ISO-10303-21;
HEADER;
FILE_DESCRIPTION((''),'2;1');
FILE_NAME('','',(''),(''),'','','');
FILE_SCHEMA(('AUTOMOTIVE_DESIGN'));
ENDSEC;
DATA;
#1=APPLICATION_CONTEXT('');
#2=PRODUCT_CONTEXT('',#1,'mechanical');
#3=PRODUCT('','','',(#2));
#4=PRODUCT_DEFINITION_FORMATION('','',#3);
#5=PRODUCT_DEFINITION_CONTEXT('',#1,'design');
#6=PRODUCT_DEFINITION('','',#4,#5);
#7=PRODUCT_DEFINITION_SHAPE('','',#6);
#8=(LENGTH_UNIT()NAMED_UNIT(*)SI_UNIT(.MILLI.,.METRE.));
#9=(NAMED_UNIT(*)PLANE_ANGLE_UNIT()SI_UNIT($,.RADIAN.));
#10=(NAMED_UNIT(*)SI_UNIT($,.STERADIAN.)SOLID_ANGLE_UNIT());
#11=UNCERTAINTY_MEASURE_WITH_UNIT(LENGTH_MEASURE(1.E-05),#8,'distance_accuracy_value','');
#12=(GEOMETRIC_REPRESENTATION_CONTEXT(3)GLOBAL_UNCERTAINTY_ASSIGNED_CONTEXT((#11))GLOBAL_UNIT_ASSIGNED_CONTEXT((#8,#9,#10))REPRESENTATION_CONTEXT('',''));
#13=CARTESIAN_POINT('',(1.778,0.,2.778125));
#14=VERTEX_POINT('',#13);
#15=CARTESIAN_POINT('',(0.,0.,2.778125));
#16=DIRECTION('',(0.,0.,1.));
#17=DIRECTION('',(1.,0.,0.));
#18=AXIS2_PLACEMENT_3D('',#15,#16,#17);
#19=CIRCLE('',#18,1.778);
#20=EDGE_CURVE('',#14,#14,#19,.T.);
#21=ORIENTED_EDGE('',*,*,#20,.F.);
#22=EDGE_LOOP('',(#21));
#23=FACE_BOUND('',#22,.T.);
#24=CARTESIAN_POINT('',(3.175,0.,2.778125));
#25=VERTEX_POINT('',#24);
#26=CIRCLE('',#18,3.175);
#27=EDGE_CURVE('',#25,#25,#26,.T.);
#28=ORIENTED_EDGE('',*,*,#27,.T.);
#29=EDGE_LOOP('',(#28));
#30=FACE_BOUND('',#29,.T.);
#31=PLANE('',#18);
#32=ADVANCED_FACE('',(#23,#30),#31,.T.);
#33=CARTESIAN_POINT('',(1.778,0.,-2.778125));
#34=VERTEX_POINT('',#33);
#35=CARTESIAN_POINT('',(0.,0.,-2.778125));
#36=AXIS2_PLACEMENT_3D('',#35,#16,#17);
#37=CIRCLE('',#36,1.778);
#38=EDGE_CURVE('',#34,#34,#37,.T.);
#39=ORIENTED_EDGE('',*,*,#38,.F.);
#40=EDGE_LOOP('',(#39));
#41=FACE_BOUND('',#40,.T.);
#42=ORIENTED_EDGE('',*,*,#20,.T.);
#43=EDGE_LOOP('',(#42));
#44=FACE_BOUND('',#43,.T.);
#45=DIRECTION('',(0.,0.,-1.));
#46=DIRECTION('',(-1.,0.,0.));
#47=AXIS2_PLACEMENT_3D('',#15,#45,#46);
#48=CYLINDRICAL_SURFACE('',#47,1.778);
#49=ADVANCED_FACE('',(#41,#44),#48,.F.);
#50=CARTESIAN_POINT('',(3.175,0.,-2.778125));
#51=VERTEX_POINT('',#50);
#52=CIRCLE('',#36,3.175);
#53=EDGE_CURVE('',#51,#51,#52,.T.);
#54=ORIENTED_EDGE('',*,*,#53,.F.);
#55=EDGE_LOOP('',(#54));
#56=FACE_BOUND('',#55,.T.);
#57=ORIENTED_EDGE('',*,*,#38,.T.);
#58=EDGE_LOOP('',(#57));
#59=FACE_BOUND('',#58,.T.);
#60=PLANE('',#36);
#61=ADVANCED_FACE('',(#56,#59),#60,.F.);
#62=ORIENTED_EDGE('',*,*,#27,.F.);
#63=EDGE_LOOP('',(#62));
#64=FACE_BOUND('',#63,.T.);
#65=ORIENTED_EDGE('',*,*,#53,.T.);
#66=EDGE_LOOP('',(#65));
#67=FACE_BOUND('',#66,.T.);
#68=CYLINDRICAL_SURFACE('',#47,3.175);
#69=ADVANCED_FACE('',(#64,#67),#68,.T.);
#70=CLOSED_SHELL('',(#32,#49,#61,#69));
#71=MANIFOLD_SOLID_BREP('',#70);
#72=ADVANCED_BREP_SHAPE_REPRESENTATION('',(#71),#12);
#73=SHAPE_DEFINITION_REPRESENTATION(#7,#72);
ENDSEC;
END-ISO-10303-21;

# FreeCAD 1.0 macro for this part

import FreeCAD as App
import Part
import Sketcher

V = App.Vector
Q = App.Units.Quantity

doc = App.newDocument("Part")
body = doc.addObject("PartDesign::Body", "Body")

sketch1 = doc.addObject("Sketcher::SketchObject", "Sketch")
body.addObject(sketch1)
sketch1.AttachmentSupport = (doc.XY_Plane, [""])
sketch1.MapMode = "FlatFace"
sketch1.addGeometry([
    Part.Circle(V(0, 0, 0), V(0, 0, 1), 3.175),
    Part.Circle(V(0, 0, 0), V(0, 0, 1), 1.778),
], False)
sketch1.addConstraint([
    Sketcher.Constraint("Coincident", 0, 3, -1, 1),
    Sketcher.Constraint("Coincident", 1, 3, -1, 1),
    Sketcher.Constraint("Diameter", 0, Q("0.25 in")),
    Sketcher.Constraint("Diameter", 1, Q("0.14 in")),
])
pad1 = doc.addObject("PartDesign::Pad", "Pad")
body.addObject(pad1)
pad1.Profile = sketch1
pad1.Length = Q("0.21875 in")
pad1.Midplane = True

doc.recompute()
